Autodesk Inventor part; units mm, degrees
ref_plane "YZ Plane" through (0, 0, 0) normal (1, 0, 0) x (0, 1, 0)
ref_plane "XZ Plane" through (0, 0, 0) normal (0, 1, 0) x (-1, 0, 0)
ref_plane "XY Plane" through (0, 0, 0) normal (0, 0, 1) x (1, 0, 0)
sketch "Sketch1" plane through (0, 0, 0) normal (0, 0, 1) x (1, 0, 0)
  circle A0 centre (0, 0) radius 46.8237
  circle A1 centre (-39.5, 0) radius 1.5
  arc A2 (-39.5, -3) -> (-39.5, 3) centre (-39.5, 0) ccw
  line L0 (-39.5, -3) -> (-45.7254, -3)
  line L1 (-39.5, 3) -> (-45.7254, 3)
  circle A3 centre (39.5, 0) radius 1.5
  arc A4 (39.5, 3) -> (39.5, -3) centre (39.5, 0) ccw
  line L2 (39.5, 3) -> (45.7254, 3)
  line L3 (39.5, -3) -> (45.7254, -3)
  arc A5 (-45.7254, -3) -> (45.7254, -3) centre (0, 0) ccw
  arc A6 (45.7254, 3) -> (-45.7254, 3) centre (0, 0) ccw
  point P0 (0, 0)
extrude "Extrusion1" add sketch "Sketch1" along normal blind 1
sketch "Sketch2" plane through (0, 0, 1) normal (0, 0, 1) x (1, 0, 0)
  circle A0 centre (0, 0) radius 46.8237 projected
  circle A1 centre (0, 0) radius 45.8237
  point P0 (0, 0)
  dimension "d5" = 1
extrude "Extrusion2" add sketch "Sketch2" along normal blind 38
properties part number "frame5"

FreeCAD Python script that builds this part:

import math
import FreeCAD as App
import Part
import Sketcher
from FreeCAD import Vector

doc = App.newDocument("Part")
body = doc.addObject("PartDesign::Body", "Body")

sketch1 = body.newObject("Sketcher::SketchObject", "Sketch")
sketch1.AttachmentSupport = (doc.getObject("XY_Plane"), [""])
sketch1.MapMode = "FlatFace"
sketch1.addGeometry([
    Part.Circle(Vector(0, 0, 0), Vector(0, 0, 1), 46.8),
    Part.Circle(Vector(-39.5, 0, 0), Vector(0, 0, 1), 1.5),
    Part.LineSegment(Vector(-45.7, -3, 0), Vector(-39.5, -3, 0)),
    Part.ArcOfCircle(Part.Circle(Vector(-39.5, 0, 0), Vector(0, 0, 1), 3), math.radians(-90), math.radians(90)),
    Part.LineSegment(Vector(-39.5, 3, 0), Vector(-45.7, 3, 0)),
    Part.ArcOfCircle(Part.Circle(Vector(0, 0, 0), Vector(0, 0, 1), 45.8), math.radians(4), math.radians(176)),
    Part.LineSegment(Vector(45.7, 3, 0), Vector(39.5, 3, 0)),
    Part.ArcOfCircle(Part.Circle(Vector(39.5, 0, 0), Vector(0, 0, 1), 3), math.radians(90), math.radians(270)),
    Part.LineSegment(Vector(39.5, -3, 0), Vector(45.7, -3, 0)),
    Part.ArcOfCircle(Part.Circle(Vector(0, 0, 0), Vector(0, 0, 1), 45.8), math.radians(-176), math.radians(-4)),
    Part.Circle(Vector(39.5, 0, 0), Vector(0, 0, 1), 1.5),
], False)
sketch1.addConstraint([
    Sketcher.Constraint("Tangent", 2, 2, 3, 1),
    Sketcher.Constraint("Tangent", 3, 2, 4, 1),
    Sketcher.Constraint("Coincident", 4, 2, 5, 2),
    Sketcher.Constraint("Coincident", 5, 1, 6, 1),
    Sketcher.Constraint("Tangent", 6, 2, 7, 1),
    Sketcher.Constraint("Tangent", 7, 2, 8, 1),
    Sketcher.Constraint("Coincident", 8, 2, 9, 2),
    Sketcher.Constraint("Coincident", 9, 1, 2, 1),
    Sketcher.Constraint("Horizontal", 2),
    Sketcher.Constraint("Horizontal", 4),
    Sketcher.Constraint("Horizontal", 6),
    Sketcher.Constraint("Horizontal", 8),
    Sketcher.Constraint("Coincident", 0, 3, -1, 1),
    Sketcher.Constraint("Coincident", 5, 3, -1, 1),
    Sketcher.Constraint("Coincident", 9, 3, -1, 1),
    Sketcher.Constraint("Coincident", 3, 3, 1, 3),
    Sketcher.Constraint("Coincident", 10, 3, 7, 3),
    Sketcher.Constraint("Equal", 3, 7),
    Sketcher.Constraint("Equal", 5, 9),
    Sketcher.Constraint("Equal", 1, 10),
    Sketcher.Constraint("Symmetric", 1, 3, 7, 3, -1, 1),
    Sketcher.Constraint("PointOnObject", 1, 3, -1),
    Sketcher.Constraint("Diameter", 1, 3.0),
    Sketcher.Constraint("Radius", 3, 3.0),
    Sketcher.Constraint("DistanceX", 1, 3, 7, 3, 79.0),
    Sketcher.Constraint("Diameter", 0, 93.6474),
    Sketcher.Constraint("Radius", 5, 45.8237),
])
pad1 = body.newObject("PartDesign::Pad", "Pad")
pad1.Profile = sketch1
pad1.Length = 1

sketch2 = body.newObject("Sketcher::SketchObject", "Sketch001")
sketch2.AttachmentSupport = (doc.getObject("XY_Plane"), [""])
sketch2.MapMode = "FlatFace"
sketch2.AttachmentOffset = App.Placement(Vector(0, 0, 1), App.Rotation())
sketch2.addGeometry([
    Part.Circle(Vector(0, 0, 0), Vector(0, 0, 1), 47),
    Part.Circle(Vector(0, 0, 0), Vector(0, 0, 1), 46),
], False)
sketch2.addConstraint([
    Sketcher.Constraint("Coincident", 0, 3, -1, 1),
    Sketcher.Constraint("Coincident", 1, 3, -1, 1),
    Sketcher.Constraint("Diameter", 0, 93.6474),
    Sketcher.Constraint("Diameter", 1, 91.6474),
])
pad2 = body.newObject("PartDesign::Pad", "Pad001")
pad2.Profile = sketch2
pad2.Length = 38

doc.recompute()
